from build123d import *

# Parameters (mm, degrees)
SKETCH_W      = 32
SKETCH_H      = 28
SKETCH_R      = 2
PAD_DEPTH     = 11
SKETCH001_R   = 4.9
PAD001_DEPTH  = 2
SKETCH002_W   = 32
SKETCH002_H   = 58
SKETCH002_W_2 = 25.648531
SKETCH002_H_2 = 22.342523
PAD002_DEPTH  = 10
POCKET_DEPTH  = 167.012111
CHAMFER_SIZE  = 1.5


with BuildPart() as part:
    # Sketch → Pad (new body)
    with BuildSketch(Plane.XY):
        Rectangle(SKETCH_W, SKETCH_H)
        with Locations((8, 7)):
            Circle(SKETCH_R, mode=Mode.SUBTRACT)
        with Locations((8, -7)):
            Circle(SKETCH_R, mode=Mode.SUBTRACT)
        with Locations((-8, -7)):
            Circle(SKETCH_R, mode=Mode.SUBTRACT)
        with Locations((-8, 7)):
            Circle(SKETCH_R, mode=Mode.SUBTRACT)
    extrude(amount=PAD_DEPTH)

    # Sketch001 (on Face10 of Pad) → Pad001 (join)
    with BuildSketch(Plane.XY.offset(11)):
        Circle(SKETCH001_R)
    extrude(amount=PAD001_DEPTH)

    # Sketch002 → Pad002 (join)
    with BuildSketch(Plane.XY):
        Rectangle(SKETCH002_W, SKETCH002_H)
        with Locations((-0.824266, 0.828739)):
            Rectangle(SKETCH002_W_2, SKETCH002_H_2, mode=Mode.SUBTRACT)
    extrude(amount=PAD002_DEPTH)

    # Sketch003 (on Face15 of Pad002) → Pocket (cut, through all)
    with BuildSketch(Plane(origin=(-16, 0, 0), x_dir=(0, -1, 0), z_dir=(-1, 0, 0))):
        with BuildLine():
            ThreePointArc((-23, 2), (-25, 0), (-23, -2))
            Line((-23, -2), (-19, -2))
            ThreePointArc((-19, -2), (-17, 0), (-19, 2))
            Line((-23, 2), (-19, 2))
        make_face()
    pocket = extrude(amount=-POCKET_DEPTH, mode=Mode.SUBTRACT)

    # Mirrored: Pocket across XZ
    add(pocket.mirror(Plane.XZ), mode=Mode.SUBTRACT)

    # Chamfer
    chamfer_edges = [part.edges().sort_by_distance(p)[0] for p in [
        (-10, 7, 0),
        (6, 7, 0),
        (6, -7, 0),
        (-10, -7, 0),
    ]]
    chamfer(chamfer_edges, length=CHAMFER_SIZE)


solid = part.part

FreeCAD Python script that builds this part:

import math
import FreeCAD as App
import Part
import Sketcher
Q = App.Units.Quantity


def edges_at(feature, points):
    """Names of the edges that pass closest to the given points."""
    edges = feature.Shape.Edges
    near = lambda p: min(range(len(edges)), key=lambda i: edges[i].distToShape(Part.Vertex(*p))[0])
    return sorted({f"Edge{near(p) + 1}" for p in points})


def add_polygon(sketch, points):
    """Adds a closed chain of lines whose ends are joined by coincident constraints."""
    first, n = sketch.GeometryCount, len(points)
    for a, b in zip(points, points[1:] + points[:1]):
        sketch.addGeometry(Part.LineSegment(App.Vector(*a, 0), App.Vector(*b, 0)), False)
    for i in range(n):
        sketch.addConstraint(Sketcher.Constraint("Coincident", first + i, 2, first + (i + 1) % n, 1))

doc = App.newDocument("Part")
body = doc.addObject("PartDesign::Body", "Body")

sketch1 = doc.addObject("Sketcher::SketchObject", "Sketch")
body.addObject(sketch1)
sketch1.AttachmentSupport = (doc.XY_Plane, [""])
sketch1.MapMode = "FlatFace"
add_polygon(sketch1, [(-16, 14), (-16, -14), (16, -14), (16, 14)])
sketch1.addGeometry(Part.Circle(App.Vector(-8, -7, 0), App.Vector(0, 0, 1), 2), False)
sketch1.addGeometry(Part.Circle(App.Vector(8, -7, 0), App.Vector(0, 0, 1), 2), False)
sketch1.addGeometry(Part.Circle(App.Vector(-8, 7, 0), App.Vector(0, 0, 1), 2), False)
sketch1.addGeometry(Part.Circle(App.Vector(8, 7, 0), App.Vector(0, 0, 1), 2), False)
sketch1.addConstraint([
    Sketcher.Constraint("Vertical", 0),
    Sketcher.Constraint("Horizontal", 1),
    Sketcher.Constraint("Vertical", 2),
    Sketcher.Constraint("Horizontal", 3),
    Sketcher.Constraint("Equal", 4, 5),
    Sketcher.Constraint("Equal", 5, 6),
    Sketcher.Constraint("Equal", 6, 7),
    Sketcher.Constraint("Symmetric", 5, 3, 6, 3, -1, 1),
    Sketcher.Constraint("Symmetric", 4, 3, 7, 3, -1, 1),
    Sketcher.Constraint("Symmetric", 0, 2, 2, 2, -1, 1),
    Sketcher.Constraint("Symmetric", 4, 3, 5, 3, -2),
    Sketcher.Constraint("Diameter", 4, Q("4 mm")),
    Sketcher.Constraint("DistanceX", 1, 1, 1, 2, Q("32 mm")),
    Sketcher.Constraint("DistanceY", 0, 2, 0, 1, Q("28 mm")),
    Sketcher.Constraint("DistanceX", 4, 3, -1, 1, Q("8 mm")),
    Sketcher.Constraint("DistanceY", 4, 3, -1, 1, Q("7 mm")),
])
pad1 = doc.addObject("PartDesign::Pad", "Pad")
body.addObject(pad1)
pad1.Profile = sketch1
pad1.Length = 11

sketch2 = doc.addObject("Sketcher::SketchObject", "Sketch001")
body.addObject(sketch2)
sketch2.AttachmentSupport = (doc.XY_Plane, [""])
sketch2.MapMode = "FlatFace"
sketch2.AttachmentOffset = App.Placement(App.Vector(0, 0, 11), App.Rotation())
sketch2.addGeometry(Part.Circle(App.Vector(0, 0, 0), App.Vector(0, 0, 1), 4.9), False)
sketch2.addConstraint([
    Sketcher.Constraint("Coincident", 0, 3, -1, 1),
    Sketcher.Constraint("Diameter", 0, Q("9.8 mm")),
])
pad2 = doc.addObject("PartDesign::Pad", "Pad001")
body.addObject(pad2)
pad2.Profile = sketch2
pad2.Length = 2

sketch3 = doc.addObject("Sketcher::SketchObject", "Sketch002")
body.addObject(sketch3)
sketch3.AttachmentSupport = (doc.XY_Plane, [""])
sketch3.MapMode = "FlatFace"
add_polygon(sketch3, [(-16, 29), (-16, -29), (16, -29), (16, 29)])
add_polygon(sketch3, [(12, -10), (-14, -10), (-14, 12), (12, 12)])
sketch3.addConstraint([
    Sketcher.Constraint("Vertical", 0),
    Sketcher.Constraint("Horizontal", 1),
    Sketcher.Constraint("Vertical", 2),
    Sketcher.Constraint("Horizontal", 3),
    Sketcher.Constraint("Horizontal", 4),
    Sketcher.Constraint("Vertical", 5),
    Sketcher.Constraint("Horizontal", 6),
    Sketcher.Constraint("Vertical", 7),
    Sketcher.Constraint("Symmetric", 0, 2, 2, 2, -1, 1),
    Sketcher.Constraint("DistanceX", 1, 1, 1, 2, Q("32 mm")),
    Sketcher.Constraint("DistanceY", 0, 2, 0, 1, Q("58 mm")),
    Sketcher.Constraint("DistanceY", -1, 1, 5, 2, Q("12.000001 mm")),
    Sketcher.Constraint("DistanceX", -1, 1, 6, 2, Q("11.999999 mm")),
    Sketcher.Constraint("DistanceX", 4, 2, 4, 1, Q("25.648531 mm")),
    Sketcher.Constraint("DistanceY", 5, 1, 5, 2, Q("22.342523 mm")),
])
pad3 = doc.addObject("PartDesign::Pad", "Pad002")
body.addObject(pad3)
pad3.Profile = sketch3
pad3.Length = 10

sketch4 = doc.addObject("Sketcher::SketchObject", "Sketch003")
body.addObject(sketch4)
sketch4.AttachmentSupport = (doc.YZ_Plane, [""])
sketch4.MapMode = "FlatFace"
sketch4.AttachmentOffset = App.Placement(App.Vector(0, 0, -16), App.Rotation())
sketch4.addGeometry([
    Part.ArcOfCircle(Part.Circle(App.Vector(23, 0, 0), App.Vector(0, 0, 1), 2), math.radians(-90), math.radians(90)),
    Part.LineSegment(App.Vector(23, -2, 0), App.Vector(19, -2, 0)),
    Part.ArcOfCircle(Part.Circle(App.Vector(19, 0, 0), App.Vector(0, 0, 1), 2), math.radians(90), math.radians(270)),
    Part.LineSegment(App.Vector(19, 2, 0), App.Vector(23, 2, 0)),
], False)
sketch4.addConstraint([
    Sketcher.Constraint("Tangent", 0, 1, 1, 1),
    Sketcher.Constraint("Tangent", 1, 2, 2, 2),
    Sketcher.Constraint("Tangent", 2, 1, 3, 1),
    Sketcher.Constraint("Tangent", 3, 2, 0, 2),
    Sketcher.Constraint("Horizontal", 1),
    Sketcher.Constraint("Horizontal", 3),
    Sketcher.Constraint("PointOnObject", 0, 3, -1),
    Sketcher.Constraint("Radius", 0, Q("2 mm")),
    Sketcher.Constraint("DistanceX", 1, 2, 1, 1, Q("4 mm")),
    Sketcher.Constraint("DistanceX", -1, 1, 0, 3, Q("23 mm")),
])
pocket1 = doc.addObject("PartDesign::Pocket", "Pocket")
body.addObject(pocket1)
pocket1.Profile = sketch4
pocket1.Type = "ThroughAll"
pocket1.Reversed = True
doc.recompute()

mirrored = doc.addObject("PartDesign::Mirrored", "Mirrored")
body.addObject(mirrored)
mirrored.Originals = [pocket1]
mirrored.MirrorPlane = (doc.XZ_Plane, [""])
body.Tip = mirrored
doc.recompute()

chamfer = doc.addObject("PartDesign::Chamfer", "Chamfer")
body.addObject(chamfer)
chamfer.Base = (mirrored, edges_at(mirrored, [
    (-10, 7, 0),
    (6, 7, 0),
    (6, -7, 0),
    (-10, -7, 0),
]))
chamfer.Size = 1.5

doc.recompute()
